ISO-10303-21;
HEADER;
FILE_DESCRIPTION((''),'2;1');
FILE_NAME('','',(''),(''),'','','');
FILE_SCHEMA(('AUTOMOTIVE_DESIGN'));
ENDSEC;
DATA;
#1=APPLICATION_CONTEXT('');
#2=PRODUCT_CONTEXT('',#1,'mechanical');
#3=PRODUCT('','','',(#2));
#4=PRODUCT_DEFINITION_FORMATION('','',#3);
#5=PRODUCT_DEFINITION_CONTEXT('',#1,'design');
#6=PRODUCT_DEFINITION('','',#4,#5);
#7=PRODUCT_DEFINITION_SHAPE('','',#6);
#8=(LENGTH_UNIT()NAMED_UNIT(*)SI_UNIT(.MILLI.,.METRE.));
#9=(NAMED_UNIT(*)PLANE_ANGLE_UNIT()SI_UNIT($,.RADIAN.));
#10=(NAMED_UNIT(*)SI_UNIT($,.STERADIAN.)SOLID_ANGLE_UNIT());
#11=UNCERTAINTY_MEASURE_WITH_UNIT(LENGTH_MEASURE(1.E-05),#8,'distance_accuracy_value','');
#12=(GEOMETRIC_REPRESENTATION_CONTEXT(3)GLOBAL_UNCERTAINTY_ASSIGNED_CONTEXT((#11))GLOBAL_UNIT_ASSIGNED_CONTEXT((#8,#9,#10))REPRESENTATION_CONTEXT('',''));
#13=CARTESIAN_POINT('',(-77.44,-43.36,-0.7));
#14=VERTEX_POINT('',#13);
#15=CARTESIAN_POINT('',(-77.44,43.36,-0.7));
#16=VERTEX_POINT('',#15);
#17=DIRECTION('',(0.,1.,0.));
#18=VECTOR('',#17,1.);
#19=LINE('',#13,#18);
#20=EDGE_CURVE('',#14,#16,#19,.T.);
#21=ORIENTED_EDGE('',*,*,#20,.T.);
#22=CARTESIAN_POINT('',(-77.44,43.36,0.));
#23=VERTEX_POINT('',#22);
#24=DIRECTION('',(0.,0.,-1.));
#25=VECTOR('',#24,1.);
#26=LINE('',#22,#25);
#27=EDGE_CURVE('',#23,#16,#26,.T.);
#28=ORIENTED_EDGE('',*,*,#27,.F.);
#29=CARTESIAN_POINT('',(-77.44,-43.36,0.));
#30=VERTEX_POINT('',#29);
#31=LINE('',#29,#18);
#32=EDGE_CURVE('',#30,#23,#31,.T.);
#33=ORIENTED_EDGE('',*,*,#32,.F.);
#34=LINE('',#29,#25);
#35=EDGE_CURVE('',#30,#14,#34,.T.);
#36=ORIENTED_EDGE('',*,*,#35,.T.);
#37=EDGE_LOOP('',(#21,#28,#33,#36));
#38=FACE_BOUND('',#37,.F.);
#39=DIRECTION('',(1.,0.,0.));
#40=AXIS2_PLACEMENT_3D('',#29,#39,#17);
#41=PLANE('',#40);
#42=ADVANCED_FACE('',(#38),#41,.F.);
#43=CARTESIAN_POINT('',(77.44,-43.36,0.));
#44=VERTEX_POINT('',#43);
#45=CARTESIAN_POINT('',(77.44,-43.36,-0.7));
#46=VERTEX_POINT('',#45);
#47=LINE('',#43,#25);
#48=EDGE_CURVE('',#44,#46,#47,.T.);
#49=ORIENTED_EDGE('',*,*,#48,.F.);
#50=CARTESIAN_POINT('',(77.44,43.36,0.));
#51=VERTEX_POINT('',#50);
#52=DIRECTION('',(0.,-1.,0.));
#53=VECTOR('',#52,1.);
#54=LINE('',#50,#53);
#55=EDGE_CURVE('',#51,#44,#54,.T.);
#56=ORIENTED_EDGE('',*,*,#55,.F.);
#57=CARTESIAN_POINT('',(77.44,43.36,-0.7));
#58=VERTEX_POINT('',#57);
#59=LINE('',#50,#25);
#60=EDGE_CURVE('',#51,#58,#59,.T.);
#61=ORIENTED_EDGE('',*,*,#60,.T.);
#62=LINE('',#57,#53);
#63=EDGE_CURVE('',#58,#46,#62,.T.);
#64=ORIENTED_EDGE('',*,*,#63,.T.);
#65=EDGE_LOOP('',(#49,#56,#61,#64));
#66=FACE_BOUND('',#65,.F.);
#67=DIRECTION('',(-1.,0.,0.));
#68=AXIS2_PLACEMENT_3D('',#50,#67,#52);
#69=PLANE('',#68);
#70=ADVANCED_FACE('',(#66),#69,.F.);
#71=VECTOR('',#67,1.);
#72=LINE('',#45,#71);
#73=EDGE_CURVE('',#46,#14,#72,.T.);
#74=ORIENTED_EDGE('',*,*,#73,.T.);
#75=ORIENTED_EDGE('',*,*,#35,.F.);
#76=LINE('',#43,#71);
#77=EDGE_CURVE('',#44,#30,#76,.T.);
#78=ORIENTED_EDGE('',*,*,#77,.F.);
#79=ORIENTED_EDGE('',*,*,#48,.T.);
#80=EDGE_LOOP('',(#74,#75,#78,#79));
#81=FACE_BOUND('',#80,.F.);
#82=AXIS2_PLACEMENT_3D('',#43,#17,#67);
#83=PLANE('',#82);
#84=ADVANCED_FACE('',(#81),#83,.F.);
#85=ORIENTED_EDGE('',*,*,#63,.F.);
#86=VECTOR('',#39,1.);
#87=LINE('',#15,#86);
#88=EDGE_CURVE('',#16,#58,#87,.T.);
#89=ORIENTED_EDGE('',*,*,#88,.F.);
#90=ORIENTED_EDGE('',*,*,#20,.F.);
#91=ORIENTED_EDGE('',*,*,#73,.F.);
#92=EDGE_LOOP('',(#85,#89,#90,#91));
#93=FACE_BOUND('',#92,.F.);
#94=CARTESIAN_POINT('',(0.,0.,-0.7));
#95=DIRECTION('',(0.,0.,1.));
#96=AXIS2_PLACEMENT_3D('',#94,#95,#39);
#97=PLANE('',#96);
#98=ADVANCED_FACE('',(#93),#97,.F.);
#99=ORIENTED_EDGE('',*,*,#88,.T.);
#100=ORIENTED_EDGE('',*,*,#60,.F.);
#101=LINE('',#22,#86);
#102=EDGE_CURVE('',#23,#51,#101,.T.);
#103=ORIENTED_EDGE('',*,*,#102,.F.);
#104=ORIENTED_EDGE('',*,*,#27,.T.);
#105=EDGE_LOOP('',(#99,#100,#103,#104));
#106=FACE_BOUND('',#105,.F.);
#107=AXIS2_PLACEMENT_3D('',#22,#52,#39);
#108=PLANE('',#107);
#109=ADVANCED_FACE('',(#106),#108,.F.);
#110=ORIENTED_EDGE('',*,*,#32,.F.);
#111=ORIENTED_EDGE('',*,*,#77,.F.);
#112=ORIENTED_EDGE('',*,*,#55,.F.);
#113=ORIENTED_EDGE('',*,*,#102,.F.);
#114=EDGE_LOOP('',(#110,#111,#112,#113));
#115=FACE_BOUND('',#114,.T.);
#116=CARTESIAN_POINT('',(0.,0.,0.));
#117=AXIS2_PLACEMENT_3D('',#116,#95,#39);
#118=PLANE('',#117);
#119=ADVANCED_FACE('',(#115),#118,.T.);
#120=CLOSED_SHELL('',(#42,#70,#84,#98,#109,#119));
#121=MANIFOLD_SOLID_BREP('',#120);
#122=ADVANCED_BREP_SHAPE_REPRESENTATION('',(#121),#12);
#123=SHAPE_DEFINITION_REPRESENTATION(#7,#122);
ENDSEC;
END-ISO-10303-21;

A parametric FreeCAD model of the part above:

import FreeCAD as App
import Part
import Sketcher

V = App.Vector
Q = App.Units.Quantity


def add_polygon(sketch, points):
    """Adds a closed chain of lines whose ends are joined by coincident constraints."""
    first, n = sketch.GeometryCount, len(points)
    for a, b in zip(points, points[1:] + points[:1]):
        sketch.addGeometry(Part.LineSegment(App.Vector(*a, 0), App.Vector(*b, 0)), False)
    for i in range(n):
        sketch.addConstraint(Sketcher.Constraint("Coincident", first + i, 2, first + (i + 1) % n, 1))

doc = App.newDocument("Part")
body = doc.addObject("PartDesign::Body", "Body")

# Sketch on XY plane
sketch1 = body.newObject("Sketcher::SketchObject", "Sketch")
sketch1.AttachmentSupport = (doc.getObject("XY_Plane"), [""])
sketch1.MapMode = "FlatFace"
add_polygon(sketch1, [(77, 43), (-77, 43), (-77, -43), (77, -43)])  # lines 0-3
sketch1.addConstraint(Sketcher.Constraint("Horizontal", 0))
sketch1.addConstraint(Sketcher.Constraint("Vertical", 1))
sketch1.addConstraint(Sketcher.Constraint("Horizontal", 2))
sketch1.addConstraint(Sketcher.Constraint("Vertical", 3))
sketch1.addConstraint(Sketcher.Constraint("Symmetric", 0, 2, 2, 2, -1, 1))
sketch1.addConstraint(Sketcher.Constraint("DistanceX", 0, 2, 0, 1, Q("154.88 mm")))
sketch1.addConstraint(Sketcher.Constraint("DistanceY", 1, 2, 1, 1, Q("86.72 mm")))
pad1 = body.newObject("PartDesign::Pad", "Pad")
pad1.Profile = sketch1
pad1.Length = 0.7
pad1.Reversed = True

doc.recompute()
